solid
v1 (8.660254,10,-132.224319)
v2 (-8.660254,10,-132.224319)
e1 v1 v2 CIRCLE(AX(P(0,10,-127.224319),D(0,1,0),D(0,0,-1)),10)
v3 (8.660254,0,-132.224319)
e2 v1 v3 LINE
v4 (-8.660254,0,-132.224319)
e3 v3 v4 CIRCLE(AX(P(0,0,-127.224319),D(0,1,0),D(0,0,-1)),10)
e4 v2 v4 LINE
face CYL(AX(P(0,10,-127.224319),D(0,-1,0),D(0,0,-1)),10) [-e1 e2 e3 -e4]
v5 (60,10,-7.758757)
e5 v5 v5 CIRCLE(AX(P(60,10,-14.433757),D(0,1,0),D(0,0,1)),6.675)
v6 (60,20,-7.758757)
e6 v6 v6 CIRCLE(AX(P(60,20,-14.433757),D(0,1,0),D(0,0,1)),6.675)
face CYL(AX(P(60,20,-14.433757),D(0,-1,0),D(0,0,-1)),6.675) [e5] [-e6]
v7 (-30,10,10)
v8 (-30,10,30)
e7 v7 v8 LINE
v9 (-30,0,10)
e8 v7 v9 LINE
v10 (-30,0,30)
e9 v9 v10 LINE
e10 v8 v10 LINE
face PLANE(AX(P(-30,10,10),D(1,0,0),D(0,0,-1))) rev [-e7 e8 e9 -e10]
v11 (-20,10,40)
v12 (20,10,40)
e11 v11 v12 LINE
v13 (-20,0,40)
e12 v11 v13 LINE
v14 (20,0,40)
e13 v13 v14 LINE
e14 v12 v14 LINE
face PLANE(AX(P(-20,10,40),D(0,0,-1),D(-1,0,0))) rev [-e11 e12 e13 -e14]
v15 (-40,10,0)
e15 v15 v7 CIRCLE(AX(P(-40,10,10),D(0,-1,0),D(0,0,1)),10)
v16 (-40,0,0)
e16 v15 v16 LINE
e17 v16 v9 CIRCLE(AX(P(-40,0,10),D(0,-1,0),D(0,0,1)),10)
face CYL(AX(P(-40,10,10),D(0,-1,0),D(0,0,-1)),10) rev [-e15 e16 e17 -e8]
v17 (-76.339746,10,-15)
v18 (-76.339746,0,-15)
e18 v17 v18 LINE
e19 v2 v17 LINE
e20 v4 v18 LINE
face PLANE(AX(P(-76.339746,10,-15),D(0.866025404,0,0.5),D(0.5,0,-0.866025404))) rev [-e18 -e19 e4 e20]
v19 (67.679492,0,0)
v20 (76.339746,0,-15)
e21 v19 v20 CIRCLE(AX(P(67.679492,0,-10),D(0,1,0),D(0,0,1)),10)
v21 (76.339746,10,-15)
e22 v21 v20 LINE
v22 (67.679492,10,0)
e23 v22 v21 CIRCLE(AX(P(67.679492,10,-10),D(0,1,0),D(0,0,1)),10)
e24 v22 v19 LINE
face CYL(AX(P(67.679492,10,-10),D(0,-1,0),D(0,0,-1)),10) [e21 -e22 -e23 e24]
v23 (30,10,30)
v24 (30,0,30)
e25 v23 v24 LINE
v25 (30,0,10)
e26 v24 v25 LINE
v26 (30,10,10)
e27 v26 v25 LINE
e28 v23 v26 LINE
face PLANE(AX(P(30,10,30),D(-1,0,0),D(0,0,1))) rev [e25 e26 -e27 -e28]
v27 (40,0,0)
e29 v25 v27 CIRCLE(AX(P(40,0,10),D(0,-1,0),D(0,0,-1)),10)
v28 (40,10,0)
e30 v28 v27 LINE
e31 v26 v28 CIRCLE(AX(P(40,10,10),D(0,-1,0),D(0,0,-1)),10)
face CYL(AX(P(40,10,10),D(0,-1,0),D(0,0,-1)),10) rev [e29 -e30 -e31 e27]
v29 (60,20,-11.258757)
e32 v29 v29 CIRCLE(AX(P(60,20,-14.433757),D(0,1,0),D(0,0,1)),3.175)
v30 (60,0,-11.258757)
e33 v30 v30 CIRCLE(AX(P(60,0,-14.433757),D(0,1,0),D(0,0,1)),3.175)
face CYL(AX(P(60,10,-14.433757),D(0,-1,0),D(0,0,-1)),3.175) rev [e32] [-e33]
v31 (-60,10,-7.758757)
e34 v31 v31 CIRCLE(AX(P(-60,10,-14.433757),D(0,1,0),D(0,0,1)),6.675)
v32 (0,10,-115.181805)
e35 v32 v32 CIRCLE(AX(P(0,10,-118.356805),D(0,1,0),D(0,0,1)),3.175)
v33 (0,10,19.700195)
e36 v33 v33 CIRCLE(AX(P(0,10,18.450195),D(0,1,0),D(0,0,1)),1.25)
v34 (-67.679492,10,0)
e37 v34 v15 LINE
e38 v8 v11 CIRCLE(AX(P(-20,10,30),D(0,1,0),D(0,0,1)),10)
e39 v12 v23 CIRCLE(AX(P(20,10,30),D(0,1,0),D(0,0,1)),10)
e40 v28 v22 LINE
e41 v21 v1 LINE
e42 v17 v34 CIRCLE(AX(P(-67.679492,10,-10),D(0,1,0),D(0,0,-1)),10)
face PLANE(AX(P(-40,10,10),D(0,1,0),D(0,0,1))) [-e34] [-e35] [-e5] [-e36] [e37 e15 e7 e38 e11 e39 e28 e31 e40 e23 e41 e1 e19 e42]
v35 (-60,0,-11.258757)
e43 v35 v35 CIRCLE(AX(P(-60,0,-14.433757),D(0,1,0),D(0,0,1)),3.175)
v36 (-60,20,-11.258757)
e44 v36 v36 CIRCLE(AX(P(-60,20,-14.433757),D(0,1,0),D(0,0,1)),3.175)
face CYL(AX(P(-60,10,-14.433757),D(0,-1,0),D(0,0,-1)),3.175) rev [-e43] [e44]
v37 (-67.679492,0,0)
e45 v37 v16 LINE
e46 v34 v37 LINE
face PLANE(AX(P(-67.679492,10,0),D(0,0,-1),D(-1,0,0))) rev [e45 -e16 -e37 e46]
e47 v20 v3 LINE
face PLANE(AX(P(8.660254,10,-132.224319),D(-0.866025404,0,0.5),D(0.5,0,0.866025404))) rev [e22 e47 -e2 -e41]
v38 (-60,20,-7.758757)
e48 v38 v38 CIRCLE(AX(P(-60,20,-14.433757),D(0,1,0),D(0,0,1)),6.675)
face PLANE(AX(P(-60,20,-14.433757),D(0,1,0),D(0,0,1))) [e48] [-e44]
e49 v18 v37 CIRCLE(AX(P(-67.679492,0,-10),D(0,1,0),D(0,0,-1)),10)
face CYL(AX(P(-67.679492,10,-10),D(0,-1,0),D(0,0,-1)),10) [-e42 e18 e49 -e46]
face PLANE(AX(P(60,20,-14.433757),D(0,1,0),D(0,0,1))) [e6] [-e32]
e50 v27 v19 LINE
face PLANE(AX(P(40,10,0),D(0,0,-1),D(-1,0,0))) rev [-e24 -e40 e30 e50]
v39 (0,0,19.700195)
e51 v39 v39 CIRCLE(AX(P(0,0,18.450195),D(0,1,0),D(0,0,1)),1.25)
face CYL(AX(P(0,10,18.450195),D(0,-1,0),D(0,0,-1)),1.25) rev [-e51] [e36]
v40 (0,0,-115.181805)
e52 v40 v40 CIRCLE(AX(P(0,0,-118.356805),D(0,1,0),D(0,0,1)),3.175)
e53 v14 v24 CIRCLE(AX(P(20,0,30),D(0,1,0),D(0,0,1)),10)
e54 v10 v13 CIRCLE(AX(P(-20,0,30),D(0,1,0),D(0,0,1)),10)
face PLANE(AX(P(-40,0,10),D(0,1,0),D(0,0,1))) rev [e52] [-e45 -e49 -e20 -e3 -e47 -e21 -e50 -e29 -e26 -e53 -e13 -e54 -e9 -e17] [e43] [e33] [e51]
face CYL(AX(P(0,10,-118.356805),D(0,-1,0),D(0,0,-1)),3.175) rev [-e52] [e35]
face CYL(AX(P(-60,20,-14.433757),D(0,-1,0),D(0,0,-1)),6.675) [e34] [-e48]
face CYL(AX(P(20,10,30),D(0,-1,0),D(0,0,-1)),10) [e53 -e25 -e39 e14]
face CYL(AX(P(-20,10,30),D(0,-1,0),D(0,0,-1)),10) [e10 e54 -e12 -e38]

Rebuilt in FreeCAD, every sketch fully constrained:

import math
import FreeCAD as App
import Part
import Sketcher
Q = App.Units.Quantity

doc = App.newDocument("Part")
body = doc.addObject("PartDesign::Body", "Body")

# Sketch on XZ plane
sketch1 = body.newObject("Sketcher::SketchObject", "Sketch")
sketch1.AttachmentSupport = (doc.getObject("XZ_Plane"), [""])
sketch1.MapMode = "FlatFace"
sketch1.addGeometry(Part.LineSegment(App.Vector(-67.679492, 0, 0), App.Vector(-40, 0, 0)), False)
sketch1.addGeometry(Part.ArcOfCircle(Part.Circle(App.Vector(-40, 10, 0), App.Vector(0, 0, 1), 10), math.radians(-90), math.radians(0)), False)
sketch1.addGeometry(Part.LineSegment(App.Vector(-30, 10, 0), App.Vector(-30, 30, 0)), False)
sketch1.addGeometry(Part.ArcOfCircle(Part.Circle(App.Vector(-20, 30, 0), App.Vector(0, 0, 1), 10), math.radians(90), math.radians(180)), False)
sketch1.addGeometry(Part.LineSegment(App.Vector(-20, 40, 0), App.Vector(20, 40, 0)), False)
sketch1.addGeometry(Part.ArcOfCircle(Part.Circle(App.Vector(20, 30, 0), App.Vector(0, 0, 1), 10), math.radians(0), math.radians(90)), False)
sketch1.addGeometry(Part.LineSegment(App.Vector(30, 30, 0), App.Vector(30, 10, 0)), False)
sketch1.addGeometry(Part.ArcOfCircle(Part.Circle(App.Vector(40, 10, 0), App.Vector(0, 0, 1), 10), math.radians(180), math.radians(270)), False)
sketch1.addGeometry(Part.LineSegment(App.Vector(40, 0, 0), App.Vector(67.679492, 0, 0)), False)
sketch1.addGeometry(Part.ArcOfCircle(Part.Circle(App.Vector(67.679492, -10, 0), App.Vector(0, 0, 1), 10), math.radians(-30), math.radians(90)), False)
sketch1.addGeometry(Part.LineSegment(App.Vector(76.339746, -15, 0), App.Vector(8.660254, -132.224319, 0)), False)
sketch1.addGeometry(Part.ArcOfCircle(Part.Circle(App.Vector(0, -127.224319, 0), App.Vector(0, 0, 1), 10), math.radians(-150), math.radians(-30)), False)
sketch1.addGeometry(Part.LineSegment(App.Vector(-8.660254, -132.224319, 0), App.Vector(-76.339746, -15, 0)), False)
sketch1.addGeometry(Part.ArcOfCircle(Part.Circle(App.Vector(-67.679492, -10, 0), App.Vector(0, 0, 1), 10), math.radians(90), math.radians(210)), False)
sketch1.addGeometry(Part.Circle(App.Vector(-60, -14.433757, 0), App.Vector(0, 0, 1), 3.175), False)
sketch1.addGeometry(Part.Circle(App.Vector(0, 18.450195, 0), App.Vector(0, 0, 1), 1.25), False)
sketch1.addGeometry(Part.Circle(App.Vector(60, -14.433757, 0), App.Vector(0, 0, 1), 3.175), False)
sketch1.addGeometry(Part.Circle(App.Vector(0, -118.356805, 0), App.Vector(0, 0, 1), 3.175), False)
sketch1.addConstraint(Sketcher.Constraint("Tangent", 0, 2, 1, 1))
sketch1.addConstraint(Sketcher.Constraint("Tangent", 1, 2, 2, 1))
sketch1.addConstraint(Sketcher.Constraint("Tangent", 2, 2, 3, 2))
sketch1.addConstraint(Sketcher.Constraint("Tangent", 3, 1, 4, 1))
sketch1.addConstraint(Sketcher.Constraint("Tangent", 4, 2, 5, 2))
sketch1.addConstraint(Sketcher.Constraint("Tangent", 5, 1, 6, 1))
sketch1.addConstraint(Sketcher.Constraint("Tangent", 6, 2, 7, 1))
sketch1.addConstraint(Sketcher.Constraint("Tangent", 7, 2, 8, 1))
sketch1.addConstraint(Sketcher.Constraint("Tangent", 8, 2, 9, 2))
sketch1.addConstraint(Sketcher.Constraint("Tangent", 9, 1, 10, 1))
sketch1.addConstraint(Sketcher.Constraint("Tangent", 10, 2, 11, 2))
sketch1.addConstraint(Sketcher.Constraint("Tangent", 11, 1, 12, 1))
sketch1.addConstraint(Sketcher.Constraint("Tangent", 12, 2, 13, 2))
sketch1.addConstraint(Sketcher.Constraint("Tangent", 13, 1, 0, 1))
sketch1.addConstraint(Sketcher.Constraint("Horizontal", 0))
sketch1.addConstraint(Sketcher.Constraint("Vertical", 2))
sketch1.addConstraint(Sketcher.Constraint("Horizontal", 4))
sketch1.addConstraint(Sketcher.Constraint("Vertical", 6))
sketch1.addConstraint(Sketcher.Constraint("Horizontal", 8))
sketch1.addConstraint(Sketcher.Constraint("Equal", 1, 3))
sketch1.addConstraint(Sketcher.Constraint("Equal", 3, 5))
sketch1.addConstraint(Sketcher.Constraint("Equal", 5, 7))
sketch1.addConstraint(Sketcher.Constraint("Equal", 7, 9))
sketch1.addConstraint(Sketcher.Constraint("Equal", 9, 11))
sketch1.addConstraint(Sketcher.Constraint("Equal", 11, 13))
sketch1.addConstraint(Sketcher.Constraint("Equal", 14, 16))
sketch1.addConstraint(Sketcher.Constraint("Equal", 16, 17))
sketch1.addConstraint(Sketcher.Constraint("Symmetric", 0, 2, 7, 2, -1, 1))
sketch1.addConstraint(Sketcher.Constraint("Symmetric", 9, 3, 13, 3, -2))
sketch1.addConstraint(Sketcher.Constraint("Symmetric", 14, 3, 16, 3, -2))
sketch1.addConstraint(Sketcher.Constraint("PointOnObject", 11, 3, -2))
sketch1.addConstraint(Sketcher.Constraint("PointOnObject", 15, 3, -2))
sketch1.addConstraint(Sketcher.Constraint("PointOnObject", 17, 3, -2))
sketch1.addConstraint(Sketcher.Constraint("Radius", 1, Q("10 mm")))
sketch1.addConstraint(Sketcher.Constraint("Diameter", 15, Q("2.5 mm")))
sketch1.addConstraint(Sketcher.Constraint("Diameter", 14, Q("6.35 mm")))
sketch1.addConstraint(Sketcher.Constraint("DistanceX", 4, 1, 4, 2, Q("40 mm")))
sketch1.addConstraint(Sketcher.Constraint("DistanceY", 2, 1, 2, 2, Q("20 mm")))
sketch1.addConstraint(Sketcher.Constraint("Angle", 10, Q("-120 deg")))
sketch1.addConstraint(Sketcher.Constraint("DistanceX", 14, 3, -1, 1, Q("60 mm")))
sketch1.addConstraint(Sketcher.Constraint("DistanceX", 0, 1, 0, 2, Q("27.679492 mm")))
sketch1.addConstraint(Sketcher.Constraint("DistanceY", 14, 3, 15, 3, Q("32.883952 mm")))
sketch1.addConstraint(Sketcher.Constraint("DistanceY", 17, 3, 14, 3, Q("103.923048 mm")))
sketch1.addConstraint(Sketcher.Constraint("DistanceY", 10, 2, 16, 3, Q("117.790562 mm")))
pad1 = body.newObject("PartDesign::Pad", "Pad")
pad1.Profile = sketch1
pad1.Length = 10
pad1.Reversed = True

# Sketch on XZ plane
sketch2 = body.newObject("Sketcher::SketchObject", "Sketch001")
sketch2.AttachmentSupport = (doc.getObject("XZ_Plane"), [""])
sketch2.MapMode = "FlatFace"
sketch2.AttachmentOffset = App.Placement(App.Vector(0, 0, -10), App.Rotation())
sketch2.addGeometry(Part.Circle(App.Vector(-60, -14.433757, 0), App.Vector(0, 0, 1), 6.675), False)
sketch2.addGeometry(Part.Circle(App.Vector(-60, -14.433757, 0), App.Vector(0, 0, 1), 3.175), False)
sketch2.addGeometry(Part.Circle(App.Vector(60, -14.433757, 0), App.Vector(0, 0, 1), 6.675), False)
sketch2.addGeometry(Part.Circle(App.Vector(60, -14.433757, 0), App.Vector(0, 0, 1), 3.175), False)
sketch2.addConstraint(Sketcher.Constraint("Coincident", 1, 3, 0, 3))
sketch2.addConstraint(Sketcher.Constraint("Coincident", 3, 3, 2, 3))
sketch2.addConstraint(Sketcher.Constraint("Equal", 0, 2))
sketch2.addConstraint(Sketcher.Constraint("Equal", 1, 3))
sketch2.addConstraint(Sketcher.Constraint("Symmetric", 0, 3, 2, 3, -2))
sketch2.addConstraint(Sketcher.Constraint("Diameter", 0, Q("13.35 mm")))
sketch2.addConstraint(Sketcher.Constraint("Diameter", 1, Q("6.35 mm")))
sketch2.addConstraint(Sketcher.Constraint("DistanceX", 0, 3, -1, 1, Q("60 mm")))
sketch2.addConstraint(Sketcher.Constraint("DistanceY", 0, 3, -1, 1, Q("14.433757 mm")))
pad2 = body.newObject("PartDesign::Pad", "Pad001")
pad2.Profile = sketch2
pad2.Length = 10
pad2.Reversed = True

doc.recompute()
